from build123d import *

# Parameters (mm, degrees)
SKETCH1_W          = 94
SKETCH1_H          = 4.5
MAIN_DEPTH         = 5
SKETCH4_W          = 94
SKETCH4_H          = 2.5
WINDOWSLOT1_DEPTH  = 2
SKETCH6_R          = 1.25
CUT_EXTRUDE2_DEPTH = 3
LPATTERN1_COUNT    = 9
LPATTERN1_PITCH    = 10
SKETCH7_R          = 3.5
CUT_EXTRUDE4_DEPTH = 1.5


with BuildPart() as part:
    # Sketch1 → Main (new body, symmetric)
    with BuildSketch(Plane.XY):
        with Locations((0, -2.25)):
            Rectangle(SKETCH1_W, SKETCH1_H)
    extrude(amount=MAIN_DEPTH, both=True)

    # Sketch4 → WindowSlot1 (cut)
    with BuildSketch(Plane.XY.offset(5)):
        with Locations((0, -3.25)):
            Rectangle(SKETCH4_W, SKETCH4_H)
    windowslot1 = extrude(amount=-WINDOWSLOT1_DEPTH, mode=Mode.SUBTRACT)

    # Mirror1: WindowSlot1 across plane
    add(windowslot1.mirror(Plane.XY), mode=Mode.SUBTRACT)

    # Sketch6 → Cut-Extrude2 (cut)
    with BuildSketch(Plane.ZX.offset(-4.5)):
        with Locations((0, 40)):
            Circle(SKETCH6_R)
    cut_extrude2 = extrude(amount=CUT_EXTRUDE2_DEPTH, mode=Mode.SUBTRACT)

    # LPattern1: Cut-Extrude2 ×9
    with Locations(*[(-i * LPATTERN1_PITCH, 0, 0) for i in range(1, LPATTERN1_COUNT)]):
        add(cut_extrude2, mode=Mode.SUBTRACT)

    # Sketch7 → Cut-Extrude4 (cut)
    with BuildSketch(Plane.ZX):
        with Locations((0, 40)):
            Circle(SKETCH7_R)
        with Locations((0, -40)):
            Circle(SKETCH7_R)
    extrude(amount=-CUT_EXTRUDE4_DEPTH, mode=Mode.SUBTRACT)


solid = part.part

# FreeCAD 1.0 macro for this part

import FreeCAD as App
import Part
import Sketcher

V = App.Vector
Q = App.Units.Quantity


def add_polygon(sketch, points):
    """Adds a closed chain of lines whose ends are joined by coincident constraints."""
    first, n = sketch.GeometryCount, len(points)
    for a, b in zip(points, points[1:] + points[:1]):
        sketch.addGeometry(Part.LineSegment(App.Vector(*a, 0), App.Vector(*b, 0)), False)
    for i in range(n):
        sketch.addConstraint(Sketcher.Constraint("Coincident", first + i, 2, first + (i + 1) % n, 1))

doc = App.newDocument("Part")
params = doc.addObject("Spreadsheet::Sheet", "Params")
for row, (alias, value) in enumerate([
    ("sketch1_width", "94 mm"),
    ("sketch1_height", "4.5 mm"),
    ("pad1_length", "10 mm"),
    ("sketch2_width", "94 mm"),
    ("sketch2_height", "2.5 mm"),
    ("pocket1_length", "2 mm"),
    ("sketch3_diameter", "2.5 mm"),
    ("pocket2_length", "3 mm"),
    ("linearpattern_pitch", "10 mm"),
    ("sketch4_diameter", "7 mm"),
    ("pocket3_length", "1.5 mm"),
], start=1):
    params.set(f"A{row}", alias)
    params.set(f"B{row}", "=" + value)
    params.setAlias(f"B{row}", alias)

body = doc.addObject("PartDesign::Body", "Body")

sketch1 = body.newObject("Sketcher::SketchObject", "Sketch")
sketch1.AttachmentSupport = (doc.getObject("XY_Plane"), [""])
sketch1.MapMode = "FlatFace"
add_polygon(sketch1, [(-47, 0), (-47, -4.5), (47, -4.5), (47, 0)])
sketch1.addConstraint(Sketcher.Constraint("Vertical", 0))
sketch1.addConstraint(Sketcher.Constraint("Horizontal", 1))
sketch1.addConstraint(Sketcher.Constraint("Vertical", 2))
sketch1.addConstraint(Sketcher.Constraint("Horizontal", 3))
sketch1.addConstraint(Sketcher.Constraint("Symmetric", 2, 2, 3, 2, -1, 1))
sketch1.addConstraint(Sketcher.Constraint("DistanceX", 1, 1, 1, 2, Q("94 mm")))
sketch1.addConstraint(Sketcher.Constraint("DistanceY", 0, 2, 0, 1, Q("4.5 mm")))
sketch1.setExpression("Constraints[9]", "Params.sketch1_width")
sketch1.setExpression("Constraints[10]", "Params.sketch1_height")
pad1 = body.newObject("PartDesign::Pad", "Pad")
pad1.Profile = sketch1
pad1.setExpression("Length", "Params.pad1_length")
pad1.Midplane = True

sketch2 = body.newObject("Sketcher::SketchObject", "Sketch001")
sketch2.AttachmentSupport = (doc.getObject("XY_Plane"), [""])
sketch2.MapMode = "FlatFace"
sketch2.AttachmentOffset = App.Placement(V(0, 0, 5), App.Rotation())
add_polygon(sketch2, [(-47, -2), (-47, -4.5), (47, -4.5), (47, -2)])
sketch2.addConstraint(Sketcher.Constraint("Vertical", 0))
sketch2.addConstraint(Sketcher.Constraint("Horizontal", 1))
sketch2.addConstraint(Sketcher.Constraint("Vertical", 2))
sketch2.addConstraint(Sketcher.Constraint("Horizontal", 3))
sketch2.addConstraint(Sketcher.Constraint("DistanceX", 1, 1, 1, 2, Q("94 mm")))
sketch2.addConstraint(Sketcher.Constraint("DistanceY", 0, 2, 0, 1, Q("2.5 mm")))
sketch2.addConstraint(Sketcher.Constraint("DistanceX", 0, 2, -1, 1, Q("47 mm")))
sketch2.addConstraint(Sketcher.Constraint("DistanceY", 2, 2, -1, 1, Q("2 mm")))
sketch2.setExpression("Constraints[8]", "Params.sketch2_width")
sketch2.setExpression("Constraints[9]", "Params.sketch2_height")
pocket1 = body.newObject("PartDesign::Pocket", "Pocket")
pocket1.Profile = sketch2
pocket1.setExpression("Length", "Params.pocket1_length")
doc.recompute()

mirrored = body.newObject("PartDesign::Mirrored", "Mirrored")
mirrored.Originals = [pocket1]
mirrored.MirrorPlane = (doc.getObject("XY_Plane"), [""])
body.Tip = mirrored

sketch3 = body.newObject("Sketcher::SketchObject", "Sketch002")
sketch3.AttachmentSupport = (doc.getObject("XZ_Plane"), [""])
sketch3.MapMode = "FlatFace"
sketch3.AttachmentOffset = App.Placement(V(0, 0, 4.5), App.Rotation())
sketch3.addGeometry(Part.Circle(V(40, 0, 0), V(0, 0, 1), 1.2), False)
sketch3.addConstraint(Sketcher.Constraint("PointOnObject", 0, 3, -1))
sketch3.addConstraint(Sketcher.Constraint("Diameter", 0, Q("2.5 mm")))
sketch3.addConstraint(Sketcher.Constraint("DistanceX", -1, 1, 0, 3, Q("40 mm")))
sketch3.setExpression("Constraints[1]", "Params.sketch3_diameter")
pocket2 = body.newObject("PartDesign::Pocket", "Pocket001")
pocket2.Profile = sketch3
pocket2.setExpression("Length", "Params.pocket2_length")
doc.recompute()

linearpattern = body.newObject("PartDesign::LinearPattern", "LinearPattern")
linearpattern.Originals = [pocket2]
linearpattern.Direction = (doc.getObject("X_Axis"), [""])
linearpattern.Mode = "offset"
linearpattern.setExpression("Offset", "Params.linearpattern_pitch")
linearpattern.Occurrences = 9
linearpattern.Reversed = True
body.Tip = linearpattern

sketch4 = body.newObject("Sketcher::SketchObject", "Sketch003")
sketch4.AttachmentSupport = (doc.getObject("XZ_Plane"), [""])
sketch4.MapMode = "FlatFace"
sketch4.addGeometry(Part.Circle(V(40, 0, 0), V(0, 0, 1), 3.5), False)
sketch4.addGeometry(Part.Circle(V(-40, 0, 0), V(0, 0, 1), 3.5), False)
sketch4.addConstraint(Sketcher.Constraint("Equal", 0, 1))
sketch4.addConstraint(Sketcher.Constraint("Symmetric", 0, 3, 1, 3, -1, 1))
sketch4.addConstraint(Sketcher.Constraint("PointOnObject", 0, 3, -1))
sketch4.addConstraint(Sketcher.Constraint("Diameter", 0, Q("7 mm")))
sketch4.addConstraint(Sketcher.Constraint("DistanceX", -1, 1, 0, 3, Q("40 mm")))
sketch4.setExpression("Constraints[3]", "Params.sketch4_diameter")
pocket3 = body.newObject("PartDesign::Pocket", "Pocket002")
pocket3.Profile = sketch4
pocket3.setExpression("Length", "Params.pocket3_length")
pocket3.Reversed = True

doc.recompute()
